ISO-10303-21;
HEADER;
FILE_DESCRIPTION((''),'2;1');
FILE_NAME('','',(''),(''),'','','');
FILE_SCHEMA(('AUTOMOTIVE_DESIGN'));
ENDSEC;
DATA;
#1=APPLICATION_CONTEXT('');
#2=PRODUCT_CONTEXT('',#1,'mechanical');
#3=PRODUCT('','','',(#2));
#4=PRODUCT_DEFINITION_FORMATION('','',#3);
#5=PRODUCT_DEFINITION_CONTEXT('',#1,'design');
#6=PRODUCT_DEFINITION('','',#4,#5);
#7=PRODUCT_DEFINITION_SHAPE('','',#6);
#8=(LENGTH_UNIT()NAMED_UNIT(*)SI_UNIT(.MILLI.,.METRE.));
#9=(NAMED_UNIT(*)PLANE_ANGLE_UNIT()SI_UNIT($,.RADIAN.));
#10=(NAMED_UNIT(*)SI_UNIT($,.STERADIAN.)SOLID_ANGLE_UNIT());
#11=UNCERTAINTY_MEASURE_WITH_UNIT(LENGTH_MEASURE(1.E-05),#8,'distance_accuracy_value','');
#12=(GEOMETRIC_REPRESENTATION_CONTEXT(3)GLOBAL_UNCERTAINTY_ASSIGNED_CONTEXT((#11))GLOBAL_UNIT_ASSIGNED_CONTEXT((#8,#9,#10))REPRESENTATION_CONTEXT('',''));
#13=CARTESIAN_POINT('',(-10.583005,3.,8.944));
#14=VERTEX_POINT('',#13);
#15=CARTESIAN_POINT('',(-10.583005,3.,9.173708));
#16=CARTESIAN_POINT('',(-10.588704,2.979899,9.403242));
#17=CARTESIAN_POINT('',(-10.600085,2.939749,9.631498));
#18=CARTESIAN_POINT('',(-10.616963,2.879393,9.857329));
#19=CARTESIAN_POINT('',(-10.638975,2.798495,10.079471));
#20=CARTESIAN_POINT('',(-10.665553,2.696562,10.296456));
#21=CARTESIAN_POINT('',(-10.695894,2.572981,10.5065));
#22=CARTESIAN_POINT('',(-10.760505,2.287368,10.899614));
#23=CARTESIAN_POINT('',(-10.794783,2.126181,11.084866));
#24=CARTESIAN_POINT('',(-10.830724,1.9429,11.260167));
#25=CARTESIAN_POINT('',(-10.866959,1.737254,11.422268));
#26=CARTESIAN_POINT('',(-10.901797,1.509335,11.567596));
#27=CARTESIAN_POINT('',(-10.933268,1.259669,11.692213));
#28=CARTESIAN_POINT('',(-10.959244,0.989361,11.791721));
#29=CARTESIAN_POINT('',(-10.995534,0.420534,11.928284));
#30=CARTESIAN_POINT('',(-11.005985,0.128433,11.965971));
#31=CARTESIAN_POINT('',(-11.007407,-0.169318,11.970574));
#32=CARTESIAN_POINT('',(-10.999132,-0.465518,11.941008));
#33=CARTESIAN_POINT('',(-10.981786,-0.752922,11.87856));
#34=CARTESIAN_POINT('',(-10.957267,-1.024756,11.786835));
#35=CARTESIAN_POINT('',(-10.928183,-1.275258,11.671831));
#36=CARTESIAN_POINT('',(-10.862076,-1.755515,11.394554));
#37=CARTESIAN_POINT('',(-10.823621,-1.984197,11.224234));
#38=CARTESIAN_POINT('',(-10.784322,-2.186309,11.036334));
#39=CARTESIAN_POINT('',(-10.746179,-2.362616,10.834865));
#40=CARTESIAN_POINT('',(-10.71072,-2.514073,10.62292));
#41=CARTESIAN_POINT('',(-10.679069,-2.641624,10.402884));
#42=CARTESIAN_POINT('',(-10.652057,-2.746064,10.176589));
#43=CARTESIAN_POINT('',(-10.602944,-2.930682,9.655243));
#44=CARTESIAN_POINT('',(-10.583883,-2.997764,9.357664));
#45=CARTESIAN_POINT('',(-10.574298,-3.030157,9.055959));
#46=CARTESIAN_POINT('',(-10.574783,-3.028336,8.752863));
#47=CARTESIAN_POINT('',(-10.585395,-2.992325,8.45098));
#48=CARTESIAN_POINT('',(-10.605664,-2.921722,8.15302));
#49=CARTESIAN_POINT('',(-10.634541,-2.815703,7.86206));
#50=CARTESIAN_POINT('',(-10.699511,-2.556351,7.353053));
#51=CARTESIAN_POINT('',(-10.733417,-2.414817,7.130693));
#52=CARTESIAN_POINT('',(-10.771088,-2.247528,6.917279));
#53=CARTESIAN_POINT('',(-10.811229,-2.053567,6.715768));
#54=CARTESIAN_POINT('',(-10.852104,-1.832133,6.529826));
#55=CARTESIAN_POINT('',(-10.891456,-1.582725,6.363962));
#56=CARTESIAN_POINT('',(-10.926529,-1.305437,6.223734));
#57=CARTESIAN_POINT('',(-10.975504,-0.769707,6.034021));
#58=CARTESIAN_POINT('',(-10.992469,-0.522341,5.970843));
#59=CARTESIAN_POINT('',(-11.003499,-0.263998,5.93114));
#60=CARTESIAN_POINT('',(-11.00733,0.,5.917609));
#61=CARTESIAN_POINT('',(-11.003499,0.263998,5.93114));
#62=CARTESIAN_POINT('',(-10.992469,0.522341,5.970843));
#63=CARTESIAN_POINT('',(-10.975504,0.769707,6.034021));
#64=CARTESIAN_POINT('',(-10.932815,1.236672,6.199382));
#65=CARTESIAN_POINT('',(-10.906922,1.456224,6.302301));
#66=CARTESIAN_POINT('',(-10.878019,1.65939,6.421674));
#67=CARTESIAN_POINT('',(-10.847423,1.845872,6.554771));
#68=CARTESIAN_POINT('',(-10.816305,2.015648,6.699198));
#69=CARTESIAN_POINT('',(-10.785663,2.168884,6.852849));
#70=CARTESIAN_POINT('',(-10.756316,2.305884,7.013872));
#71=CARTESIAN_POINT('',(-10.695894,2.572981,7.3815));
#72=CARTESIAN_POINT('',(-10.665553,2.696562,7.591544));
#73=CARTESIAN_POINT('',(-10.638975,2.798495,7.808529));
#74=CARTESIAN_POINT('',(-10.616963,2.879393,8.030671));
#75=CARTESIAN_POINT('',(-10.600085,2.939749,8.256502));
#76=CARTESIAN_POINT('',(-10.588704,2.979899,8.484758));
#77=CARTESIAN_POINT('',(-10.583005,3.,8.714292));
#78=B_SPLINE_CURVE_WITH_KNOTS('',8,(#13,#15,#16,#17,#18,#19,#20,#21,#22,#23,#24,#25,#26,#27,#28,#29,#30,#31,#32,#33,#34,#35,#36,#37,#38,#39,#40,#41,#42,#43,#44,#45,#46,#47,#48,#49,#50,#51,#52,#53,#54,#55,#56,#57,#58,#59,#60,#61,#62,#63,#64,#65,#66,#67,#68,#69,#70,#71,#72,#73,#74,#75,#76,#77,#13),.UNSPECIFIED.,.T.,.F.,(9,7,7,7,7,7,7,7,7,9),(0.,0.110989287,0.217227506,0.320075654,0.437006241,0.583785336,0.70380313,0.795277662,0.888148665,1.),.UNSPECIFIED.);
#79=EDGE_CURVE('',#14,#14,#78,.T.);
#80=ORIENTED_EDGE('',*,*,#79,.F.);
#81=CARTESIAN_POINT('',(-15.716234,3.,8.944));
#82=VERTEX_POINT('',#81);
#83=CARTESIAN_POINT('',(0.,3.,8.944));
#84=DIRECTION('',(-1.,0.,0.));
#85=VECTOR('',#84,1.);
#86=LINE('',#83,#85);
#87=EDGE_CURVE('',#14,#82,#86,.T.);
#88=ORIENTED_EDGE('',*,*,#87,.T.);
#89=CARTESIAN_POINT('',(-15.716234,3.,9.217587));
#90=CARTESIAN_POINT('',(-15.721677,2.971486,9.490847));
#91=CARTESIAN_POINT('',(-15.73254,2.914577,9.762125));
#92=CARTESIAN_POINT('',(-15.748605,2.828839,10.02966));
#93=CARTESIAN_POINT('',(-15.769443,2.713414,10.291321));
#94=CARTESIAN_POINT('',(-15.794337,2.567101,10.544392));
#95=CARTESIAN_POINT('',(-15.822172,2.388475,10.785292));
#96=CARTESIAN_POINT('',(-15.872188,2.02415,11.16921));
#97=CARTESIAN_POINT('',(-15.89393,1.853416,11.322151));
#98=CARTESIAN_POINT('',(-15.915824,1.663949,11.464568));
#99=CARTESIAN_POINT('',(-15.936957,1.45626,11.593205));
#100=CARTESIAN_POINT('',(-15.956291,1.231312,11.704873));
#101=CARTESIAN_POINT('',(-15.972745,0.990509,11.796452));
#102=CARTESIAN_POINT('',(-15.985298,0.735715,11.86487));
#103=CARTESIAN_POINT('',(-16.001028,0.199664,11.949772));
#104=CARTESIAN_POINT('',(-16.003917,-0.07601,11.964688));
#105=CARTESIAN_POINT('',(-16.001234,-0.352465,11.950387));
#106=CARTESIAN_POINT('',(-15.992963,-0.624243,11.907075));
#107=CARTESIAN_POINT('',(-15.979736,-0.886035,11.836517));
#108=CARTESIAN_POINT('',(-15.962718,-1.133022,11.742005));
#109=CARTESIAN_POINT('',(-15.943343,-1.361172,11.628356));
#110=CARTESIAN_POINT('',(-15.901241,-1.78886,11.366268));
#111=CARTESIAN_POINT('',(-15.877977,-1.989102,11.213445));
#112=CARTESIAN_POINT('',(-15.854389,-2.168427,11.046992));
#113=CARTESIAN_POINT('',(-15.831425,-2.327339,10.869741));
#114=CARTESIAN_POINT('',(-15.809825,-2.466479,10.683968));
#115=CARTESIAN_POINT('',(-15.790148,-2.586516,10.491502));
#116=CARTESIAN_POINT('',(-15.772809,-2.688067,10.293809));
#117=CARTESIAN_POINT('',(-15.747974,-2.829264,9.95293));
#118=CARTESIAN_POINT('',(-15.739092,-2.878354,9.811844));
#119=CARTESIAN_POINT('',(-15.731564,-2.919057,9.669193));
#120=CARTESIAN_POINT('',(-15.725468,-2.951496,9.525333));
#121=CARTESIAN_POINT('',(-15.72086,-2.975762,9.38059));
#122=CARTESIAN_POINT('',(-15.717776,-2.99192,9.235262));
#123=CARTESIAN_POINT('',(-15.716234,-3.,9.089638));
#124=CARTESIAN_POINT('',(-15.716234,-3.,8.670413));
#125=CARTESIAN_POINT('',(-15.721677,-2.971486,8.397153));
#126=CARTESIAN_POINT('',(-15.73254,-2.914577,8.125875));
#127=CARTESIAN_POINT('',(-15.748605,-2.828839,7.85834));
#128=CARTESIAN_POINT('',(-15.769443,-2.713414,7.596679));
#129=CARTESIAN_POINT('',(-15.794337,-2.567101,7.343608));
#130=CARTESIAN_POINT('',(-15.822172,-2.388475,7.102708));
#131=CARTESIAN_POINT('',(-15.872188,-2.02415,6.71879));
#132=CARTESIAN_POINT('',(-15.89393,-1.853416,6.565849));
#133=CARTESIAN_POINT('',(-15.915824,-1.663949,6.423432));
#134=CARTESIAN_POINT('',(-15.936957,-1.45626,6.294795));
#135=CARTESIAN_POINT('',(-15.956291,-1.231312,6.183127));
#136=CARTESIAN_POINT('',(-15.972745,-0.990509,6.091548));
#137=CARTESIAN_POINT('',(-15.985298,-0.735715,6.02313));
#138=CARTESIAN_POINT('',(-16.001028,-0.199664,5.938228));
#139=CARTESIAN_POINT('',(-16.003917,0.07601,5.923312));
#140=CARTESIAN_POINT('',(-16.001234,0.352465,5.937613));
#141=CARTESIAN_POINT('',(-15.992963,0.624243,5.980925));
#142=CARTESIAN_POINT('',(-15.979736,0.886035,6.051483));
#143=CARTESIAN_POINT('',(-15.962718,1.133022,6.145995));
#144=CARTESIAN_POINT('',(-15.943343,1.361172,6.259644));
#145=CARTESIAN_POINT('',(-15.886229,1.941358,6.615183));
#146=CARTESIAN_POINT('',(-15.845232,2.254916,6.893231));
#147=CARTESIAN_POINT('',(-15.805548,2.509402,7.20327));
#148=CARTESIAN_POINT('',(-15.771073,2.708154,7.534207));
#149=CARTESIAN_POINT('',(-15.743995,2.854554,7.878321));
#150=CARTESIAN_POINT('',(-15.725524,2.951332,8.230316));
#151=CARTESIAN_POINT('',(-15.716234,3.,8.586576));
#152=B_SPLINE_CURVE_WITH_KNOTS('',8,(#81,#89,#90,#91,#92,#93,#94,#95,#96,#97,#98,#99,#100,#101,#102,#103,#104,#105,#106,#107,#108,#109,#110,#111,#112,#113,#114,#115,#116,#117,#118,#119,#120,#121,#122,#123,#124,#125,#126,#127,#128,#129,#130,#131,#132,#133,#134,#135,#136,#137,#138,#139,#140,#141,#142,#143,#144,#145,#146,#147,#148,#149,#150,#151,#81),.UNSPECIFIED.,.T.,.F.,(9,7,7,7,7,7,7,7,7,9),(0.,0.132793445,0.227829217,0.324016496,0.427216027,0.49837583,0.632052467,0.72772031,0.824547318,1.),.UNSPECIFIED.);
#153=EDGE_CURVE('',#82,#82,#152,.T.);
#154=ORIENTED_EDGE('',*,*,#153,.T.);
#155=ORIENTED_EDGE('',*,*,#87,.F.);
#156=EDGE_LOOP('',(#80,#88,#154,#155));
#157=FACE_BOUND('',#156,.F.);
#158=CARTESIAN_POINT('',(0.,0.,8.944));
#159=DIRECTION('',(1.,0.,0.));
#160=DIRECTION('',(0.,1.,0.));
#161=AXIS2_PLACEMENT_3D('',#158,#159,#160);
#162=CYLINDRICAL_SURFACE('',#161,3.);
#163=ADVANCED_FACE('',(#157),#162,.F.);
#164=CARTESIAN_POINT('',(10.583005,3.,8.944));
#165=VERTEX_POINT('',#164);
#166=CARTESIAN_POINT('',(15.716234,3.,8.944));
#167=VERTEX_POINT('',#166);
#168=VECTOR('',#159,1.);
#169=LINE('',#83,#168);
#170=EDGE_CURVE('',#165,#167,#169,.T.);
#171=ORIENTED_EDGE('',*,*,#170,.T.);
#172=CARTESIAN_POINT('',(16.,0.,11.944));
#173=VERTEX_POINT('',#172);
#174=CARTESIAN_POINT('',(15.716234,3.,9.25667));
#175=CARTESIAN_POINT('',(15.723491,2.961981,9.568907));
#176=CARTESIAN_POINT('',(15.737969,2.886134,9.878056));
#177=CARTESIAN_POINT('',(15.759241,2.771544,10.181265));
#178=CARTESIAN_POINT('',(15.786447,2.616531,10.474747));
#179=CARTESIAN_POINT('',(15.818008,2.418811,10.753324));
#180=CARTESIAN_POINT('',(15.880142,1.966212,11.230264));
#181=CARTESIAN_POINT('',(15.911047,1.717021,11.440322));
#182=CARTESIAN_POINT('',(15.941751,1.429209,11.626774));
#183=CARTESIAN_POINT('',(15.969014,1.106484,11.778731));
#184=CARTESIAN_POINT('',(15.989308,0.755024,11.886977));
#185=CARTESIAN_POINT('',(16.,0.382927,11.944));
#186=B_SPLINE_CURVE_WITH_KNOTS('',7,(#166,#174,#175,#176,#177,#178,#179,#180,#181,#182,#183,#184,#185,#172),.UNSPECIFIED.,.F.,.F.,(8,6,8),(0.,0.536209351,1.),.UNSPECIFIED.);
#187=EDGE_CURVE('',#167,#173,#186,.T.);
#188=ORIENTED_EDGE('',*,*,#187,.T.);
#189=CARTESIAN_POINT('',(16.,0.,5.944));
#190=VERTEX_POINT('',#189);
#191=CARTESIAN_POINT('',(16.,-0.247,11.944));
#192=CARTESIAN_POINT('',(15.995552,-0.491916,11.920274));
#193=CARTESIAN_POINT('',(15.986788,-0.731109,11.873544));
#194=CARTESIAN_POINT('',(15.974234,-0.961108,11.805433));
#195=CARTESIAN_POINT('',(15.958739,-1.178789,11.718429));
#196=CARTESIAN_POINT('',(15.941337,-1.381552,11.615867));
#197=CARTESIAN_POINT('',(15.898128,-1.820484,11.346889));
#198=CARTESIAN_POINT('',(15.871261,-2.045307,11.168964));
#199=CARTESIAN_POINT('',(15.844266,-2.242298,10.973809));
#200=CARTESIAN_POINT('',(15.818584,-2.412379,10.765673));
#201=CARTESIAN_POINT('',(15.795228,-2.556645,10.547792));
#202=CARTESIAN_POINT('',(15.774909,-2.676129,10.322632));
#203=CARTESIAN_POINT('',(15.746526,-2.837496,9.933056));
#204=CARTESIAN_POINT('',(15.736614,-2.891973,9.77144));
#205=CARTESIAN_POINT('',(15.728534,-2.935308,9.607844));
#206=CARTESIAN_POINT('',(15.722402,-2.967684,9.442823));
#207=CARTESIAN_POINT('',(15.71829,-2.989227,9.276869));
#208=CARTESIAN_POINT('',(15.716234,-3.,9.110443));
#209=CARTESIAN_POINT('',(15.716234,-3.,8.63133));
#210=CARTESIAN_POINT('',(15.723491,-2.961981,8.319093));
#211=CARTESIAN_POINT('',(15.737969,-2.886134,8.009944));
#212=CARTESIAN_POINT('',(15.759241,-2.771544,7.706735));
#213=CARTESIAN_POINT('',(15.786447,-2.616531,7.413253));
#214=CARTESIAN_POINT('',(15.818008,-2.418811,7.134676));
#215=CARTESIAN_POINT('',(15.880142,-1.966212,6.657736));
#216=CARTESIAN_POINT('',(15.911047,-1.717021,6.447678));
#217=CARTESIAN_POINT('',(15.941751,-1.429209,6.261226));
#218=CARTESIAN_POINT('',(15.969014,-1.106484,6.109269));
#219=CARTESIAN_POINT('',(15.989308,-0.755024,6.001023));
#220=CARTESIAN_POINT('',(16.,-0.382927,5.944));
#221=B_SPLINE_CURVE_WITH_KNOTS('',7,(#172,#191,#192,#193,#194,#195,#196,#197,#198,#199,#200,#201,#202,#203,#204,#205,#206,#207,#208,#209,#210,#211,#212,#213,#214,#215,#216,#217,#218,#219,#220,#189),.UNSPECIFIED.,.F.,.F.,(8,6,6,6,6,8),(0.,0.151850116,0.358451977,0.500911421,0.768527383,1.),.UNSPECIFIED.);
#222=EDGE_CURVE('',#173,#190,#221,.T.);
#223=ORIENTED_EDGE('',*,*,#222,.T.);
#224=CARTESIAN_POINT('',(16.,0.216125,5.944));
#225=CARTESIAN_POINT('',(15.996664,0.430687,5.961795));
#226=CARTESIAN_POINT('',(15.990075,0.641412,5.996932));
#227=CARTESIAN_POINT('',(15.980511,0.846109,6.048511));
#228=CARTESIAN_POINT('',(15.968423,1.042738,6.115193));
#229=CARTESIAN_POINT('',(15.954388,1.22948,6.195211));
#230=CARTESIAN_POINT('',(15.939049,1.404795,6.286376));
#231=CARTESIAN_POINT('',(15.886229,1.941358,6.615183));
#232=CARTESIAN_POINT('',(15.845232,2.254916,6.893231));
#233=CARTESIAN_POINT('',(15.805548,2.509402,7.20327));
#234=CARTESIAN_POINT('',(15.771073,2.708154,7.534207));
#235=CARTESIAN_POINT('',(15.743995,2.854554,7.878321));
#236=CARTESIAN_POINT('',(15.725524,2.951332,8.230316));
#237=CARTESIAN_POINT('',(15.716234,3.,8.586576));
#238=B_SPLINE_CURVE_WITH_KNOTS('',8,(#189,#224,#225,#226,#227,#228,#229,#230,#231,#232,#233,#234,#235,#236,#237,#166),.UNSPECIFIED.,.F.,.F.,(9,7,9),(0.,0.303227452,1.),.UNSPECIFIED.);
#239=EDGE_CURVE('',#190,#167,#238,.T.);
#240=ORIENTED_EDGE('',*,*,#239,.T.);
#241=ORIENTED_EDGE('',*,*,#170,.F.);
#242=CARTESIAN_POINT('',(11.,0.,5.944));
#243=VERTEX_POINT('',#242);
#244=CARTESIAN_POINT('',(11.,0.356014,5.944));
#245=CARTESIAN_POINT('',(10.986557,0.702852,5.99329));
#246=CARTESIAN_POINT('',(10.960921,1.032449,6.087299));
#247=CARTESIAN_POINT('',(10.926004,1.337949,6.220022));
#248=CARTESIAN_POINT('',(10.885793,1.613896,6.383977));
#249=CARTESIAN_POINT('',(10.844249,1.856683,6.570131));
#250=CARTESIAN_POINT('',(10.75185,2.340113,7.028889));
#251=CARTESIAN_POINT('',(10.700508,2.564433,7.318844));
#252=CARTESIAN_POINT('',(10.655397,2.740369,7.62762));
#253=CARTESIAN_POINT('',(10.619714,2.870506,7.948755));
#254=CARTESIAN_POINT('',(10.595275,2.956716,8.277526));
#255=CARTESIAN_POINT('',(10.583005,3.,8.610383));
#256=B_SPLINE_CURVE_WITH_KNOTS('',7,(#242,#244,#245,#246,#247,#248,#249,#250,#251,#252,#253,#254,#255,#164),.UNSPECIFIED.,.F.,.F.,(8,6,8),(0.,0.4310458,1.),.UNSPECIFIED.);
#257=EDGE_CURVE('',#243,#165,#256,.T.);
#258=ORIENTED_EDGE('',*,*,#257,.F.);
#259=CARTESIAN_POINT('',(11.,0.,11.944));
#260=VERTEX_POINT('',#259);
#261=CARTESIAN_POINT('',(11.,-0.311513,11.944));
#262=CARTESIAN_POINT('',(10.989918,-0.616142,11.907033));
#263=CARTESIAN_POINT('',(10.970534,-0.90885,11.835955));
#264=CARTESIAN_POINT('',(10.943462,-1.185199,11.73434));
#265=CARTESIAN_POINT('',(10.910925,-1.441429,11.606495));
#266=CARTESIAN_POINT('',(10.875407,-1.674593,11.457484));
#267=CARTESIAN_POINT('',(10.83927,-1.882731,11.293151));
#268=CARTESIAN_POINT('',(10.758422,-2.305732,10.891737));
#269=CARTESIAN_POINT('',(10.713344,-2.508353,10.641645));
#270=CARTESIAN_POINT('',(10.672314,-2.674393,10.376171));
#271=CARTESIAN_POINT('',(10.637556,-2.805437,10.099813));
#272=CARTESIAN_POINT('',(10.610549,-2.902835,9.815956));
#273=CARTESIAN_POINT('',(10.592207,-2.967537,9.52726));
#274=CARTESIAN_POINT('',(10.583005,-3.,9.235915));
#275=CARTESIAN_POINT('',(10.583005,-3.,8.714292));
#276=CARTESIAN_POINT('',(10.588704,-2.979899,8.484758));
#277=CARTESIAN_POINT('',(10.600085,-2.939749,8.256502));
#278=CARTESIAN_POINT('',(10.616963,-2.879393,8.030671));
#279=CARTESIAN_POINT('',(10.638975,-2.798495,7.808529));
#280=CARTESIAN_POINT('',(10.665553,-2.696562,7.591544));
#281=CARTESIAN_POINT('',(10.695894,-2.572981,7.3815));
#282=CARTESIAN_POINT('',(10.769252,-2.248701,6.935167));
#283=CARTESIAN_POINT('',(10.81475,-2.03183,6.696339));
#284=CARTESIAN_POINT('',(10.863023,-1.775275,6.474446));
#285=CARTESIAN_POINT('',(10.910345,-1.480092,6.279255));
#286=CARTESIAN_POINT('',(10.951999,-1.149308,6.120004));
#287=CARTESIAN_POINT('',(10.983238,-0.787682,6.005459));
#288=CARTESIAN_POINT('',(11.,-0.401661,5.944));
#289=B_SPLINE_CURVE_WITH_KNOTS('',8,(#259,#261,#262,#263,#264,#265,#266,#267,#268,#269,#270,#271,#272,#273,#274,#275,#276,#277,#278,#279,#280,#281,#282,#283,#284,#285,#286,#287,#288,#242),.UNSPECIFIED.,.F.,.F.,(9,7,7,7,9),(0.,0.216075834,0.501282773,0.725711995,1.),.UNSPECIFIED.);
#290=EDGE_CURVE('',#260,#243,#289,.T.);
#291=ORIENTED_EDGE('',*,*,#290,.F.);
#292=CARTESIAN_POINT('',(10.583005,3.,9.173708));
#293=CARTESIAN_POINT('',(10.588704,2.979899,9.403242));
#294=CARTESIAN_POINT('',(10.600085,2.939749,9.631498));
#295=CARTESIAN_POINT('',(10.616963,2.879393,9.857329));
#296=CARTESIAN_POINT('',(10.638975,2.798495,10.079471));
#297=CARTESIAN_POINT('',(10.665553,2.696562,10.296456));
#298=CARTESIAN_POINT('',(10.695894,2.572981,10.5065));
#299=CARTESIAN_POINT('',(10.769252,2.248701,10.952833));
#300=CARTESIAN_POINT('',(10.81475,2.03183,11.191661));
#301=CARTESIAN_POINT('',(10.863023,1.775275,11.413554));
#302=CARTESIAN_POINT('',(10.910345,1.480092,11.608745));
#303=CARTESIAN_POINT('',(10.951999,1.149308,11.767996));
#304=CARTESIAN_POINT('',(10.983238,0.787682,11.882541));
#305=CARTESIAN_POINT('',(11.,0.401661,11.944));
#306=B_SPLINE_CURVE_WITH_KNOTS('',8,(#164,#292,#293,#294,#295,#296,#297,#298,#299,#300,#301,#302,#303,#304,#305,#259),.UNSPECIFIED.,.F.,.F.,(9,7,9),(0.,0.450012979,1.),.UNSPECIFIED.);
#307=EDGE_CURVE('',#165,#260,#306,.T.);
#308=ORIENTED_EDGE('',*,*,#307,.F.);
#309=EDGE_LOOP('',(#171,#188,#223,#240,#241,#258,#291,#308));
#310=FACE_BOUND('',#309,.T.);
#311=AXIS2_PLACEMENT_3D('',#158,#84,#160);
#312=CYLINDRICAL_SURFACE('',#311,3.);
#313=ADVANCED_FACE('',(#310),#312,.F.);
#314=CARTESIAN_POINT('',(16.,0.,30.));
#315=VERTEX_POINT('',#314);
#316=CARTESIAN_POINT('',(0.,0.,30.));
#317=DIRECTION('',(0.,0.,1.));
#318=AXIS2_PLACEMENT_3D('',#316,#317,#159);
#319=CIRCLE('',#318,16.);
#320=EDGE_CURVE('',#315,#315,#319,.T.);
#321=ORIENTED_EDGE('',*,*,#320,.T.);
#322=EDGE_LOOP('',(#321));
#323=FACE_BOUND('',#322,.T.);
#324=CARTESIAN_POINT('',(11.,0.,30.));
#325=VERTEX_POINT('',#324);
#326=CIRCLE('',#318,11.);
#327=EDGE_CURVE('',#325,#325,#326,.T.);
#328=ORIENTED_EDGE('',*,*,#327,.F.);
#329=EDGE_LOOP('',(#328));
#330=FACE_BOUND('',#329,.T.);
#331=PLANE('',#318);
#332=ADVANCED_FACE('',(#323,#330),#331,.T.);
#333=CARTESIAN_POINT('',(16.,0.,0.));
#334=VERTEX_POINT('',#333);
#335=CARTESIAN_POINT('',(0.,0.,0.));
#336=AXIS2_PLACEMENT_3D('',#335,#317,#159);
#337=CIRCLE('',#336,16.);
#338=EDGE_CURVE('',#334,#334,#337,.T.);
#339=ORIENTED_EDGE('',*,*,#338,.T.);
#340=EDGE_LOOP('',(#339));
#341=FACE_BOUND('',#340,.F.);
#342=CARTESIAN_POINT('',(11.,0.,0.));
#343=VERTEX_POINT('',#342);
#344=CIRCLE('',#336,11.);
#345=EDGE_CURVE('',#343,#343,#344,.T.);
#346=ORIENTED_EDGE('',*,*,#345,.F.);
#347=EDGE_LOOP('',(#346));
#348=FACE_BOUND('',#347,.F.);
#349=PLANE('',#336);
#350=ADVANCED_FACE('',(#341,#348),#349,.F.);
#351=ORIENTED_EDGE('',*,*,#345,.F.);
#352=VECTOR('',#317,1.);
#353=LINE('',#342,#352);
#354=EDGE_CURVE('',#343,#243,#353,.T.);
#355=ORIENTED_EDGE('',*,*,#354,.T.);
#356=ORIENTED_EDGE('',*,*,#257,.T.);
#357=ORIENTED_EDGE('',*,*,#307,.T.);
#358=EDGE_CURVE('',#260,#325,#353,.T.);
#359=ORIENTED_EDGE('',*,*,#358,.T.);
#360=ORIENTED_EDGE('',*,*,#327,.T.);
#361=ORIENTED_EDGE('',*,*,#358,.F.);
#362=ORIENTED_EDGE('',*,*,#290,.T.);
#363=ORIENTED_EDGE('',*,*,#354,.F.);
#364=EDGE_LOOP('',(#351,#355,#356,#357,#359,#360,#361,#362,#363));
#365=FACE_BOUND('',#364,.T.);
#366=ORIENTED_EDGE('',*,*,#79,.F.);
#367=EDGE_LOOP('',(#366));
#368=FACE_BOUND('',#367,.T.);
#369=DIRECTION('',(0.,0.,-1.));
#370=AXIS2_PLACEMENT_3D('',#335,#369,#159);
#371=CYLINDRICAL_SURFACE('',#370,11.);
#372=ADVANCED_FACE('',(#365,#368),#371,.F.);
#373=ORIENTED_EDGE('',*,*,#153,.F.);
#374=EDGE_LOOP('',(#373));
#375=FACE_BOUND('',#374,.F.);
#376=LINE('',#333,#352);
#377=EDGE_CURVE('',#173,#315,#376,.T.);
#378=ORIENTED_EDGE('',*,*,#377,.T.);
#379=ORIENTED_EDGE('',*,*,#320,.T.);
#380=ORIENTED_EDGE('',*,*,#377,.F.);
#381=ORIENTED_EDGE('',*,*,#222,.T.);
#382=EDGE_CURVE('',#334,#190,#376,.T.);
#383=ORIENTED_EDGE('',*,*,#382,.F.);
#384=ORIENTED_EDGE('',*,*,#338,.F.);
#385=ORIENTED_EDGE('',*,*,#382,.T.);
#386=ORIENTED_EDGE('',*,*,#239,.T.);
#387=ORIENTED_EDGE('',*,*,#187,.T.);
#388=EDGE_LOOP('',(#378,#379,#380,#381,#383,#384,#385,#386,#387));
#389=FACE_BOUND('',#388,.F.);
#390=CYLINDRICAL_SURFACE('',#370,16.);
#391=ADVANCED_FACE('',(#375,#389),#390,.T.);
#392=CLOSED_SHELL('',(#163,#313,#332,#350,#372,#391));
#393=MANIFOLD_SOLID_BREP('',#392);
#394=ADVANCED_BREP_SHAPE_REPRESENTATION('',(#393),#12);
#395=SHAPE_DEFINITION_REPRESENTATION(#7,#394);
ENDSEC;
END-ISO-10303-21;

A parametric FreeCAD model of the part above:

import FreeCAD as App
import Part
import Sketcher

V = App.Vector

doc = App.newDocument("Part")
body = doc.addObject("PartDesign::Body", "Body")

sketch1 = body.newObject("Sketcher::SketchObject", "Sketch")
sketch1.AttachmentSupport = (doc.getObject("XY_Plane"), [""])
sketch1.MapMode = "FlatFace"
sketch1.addGeometry(Part.Circle(V(0, 0, 0), V(0, 0, 1), 16), False)
sketch1.addGeometry(Part.Circle(V(0, 0, 0), V(0, 0, 1), 11), False)
sketch1.addConstraint(Sketcher.Constraint("Coincident", 0, 3, -1, 1))
sketch1.addConstraint(Sketcher.Constraint("Coincident", 1, 3, -1, 1))
sketch1.addConstraint(Sketcher.Constraint("Diameter", 0, 32.0))
sketch1.addConstraint(Sketcher.Constraint("Diameter", 1, 22.0))
pad1 = body.newObject("PartDesign::Pad", "Pad")
pad1.Profile = sketch1
pad1.Length = 30

sketch2 = body.newObject("Sketcher::SketchObject", "Sketch001")
sketch2.AttachmentSupport = (doc.getObject("YZ_Plane"), [""])
sketch2.MapMode = "FlatFace"
sketch2.addGeometry(Part.Circle(V(0, 8.944, 0), V(0, 0, 1), 3), False)
sketch2.addConstraint(Sketcher.Constraint("PointOnObject", 0, 3, -2))
sketch2.addConstraint(Sketcher.Constraint("Diameter", 0, 6.0))
sketch2.addConstraint(Sketcher.Constraint("DistanceY", -1, 1, 0, 3, 8.944))
pocket1 = body.newObject("PartDesign::Pocket", "Pocket")
pocket1.Profile = sketch2
pocket1.Length = 56.5548
pocket1.Midplane = True

doc.recompute()
